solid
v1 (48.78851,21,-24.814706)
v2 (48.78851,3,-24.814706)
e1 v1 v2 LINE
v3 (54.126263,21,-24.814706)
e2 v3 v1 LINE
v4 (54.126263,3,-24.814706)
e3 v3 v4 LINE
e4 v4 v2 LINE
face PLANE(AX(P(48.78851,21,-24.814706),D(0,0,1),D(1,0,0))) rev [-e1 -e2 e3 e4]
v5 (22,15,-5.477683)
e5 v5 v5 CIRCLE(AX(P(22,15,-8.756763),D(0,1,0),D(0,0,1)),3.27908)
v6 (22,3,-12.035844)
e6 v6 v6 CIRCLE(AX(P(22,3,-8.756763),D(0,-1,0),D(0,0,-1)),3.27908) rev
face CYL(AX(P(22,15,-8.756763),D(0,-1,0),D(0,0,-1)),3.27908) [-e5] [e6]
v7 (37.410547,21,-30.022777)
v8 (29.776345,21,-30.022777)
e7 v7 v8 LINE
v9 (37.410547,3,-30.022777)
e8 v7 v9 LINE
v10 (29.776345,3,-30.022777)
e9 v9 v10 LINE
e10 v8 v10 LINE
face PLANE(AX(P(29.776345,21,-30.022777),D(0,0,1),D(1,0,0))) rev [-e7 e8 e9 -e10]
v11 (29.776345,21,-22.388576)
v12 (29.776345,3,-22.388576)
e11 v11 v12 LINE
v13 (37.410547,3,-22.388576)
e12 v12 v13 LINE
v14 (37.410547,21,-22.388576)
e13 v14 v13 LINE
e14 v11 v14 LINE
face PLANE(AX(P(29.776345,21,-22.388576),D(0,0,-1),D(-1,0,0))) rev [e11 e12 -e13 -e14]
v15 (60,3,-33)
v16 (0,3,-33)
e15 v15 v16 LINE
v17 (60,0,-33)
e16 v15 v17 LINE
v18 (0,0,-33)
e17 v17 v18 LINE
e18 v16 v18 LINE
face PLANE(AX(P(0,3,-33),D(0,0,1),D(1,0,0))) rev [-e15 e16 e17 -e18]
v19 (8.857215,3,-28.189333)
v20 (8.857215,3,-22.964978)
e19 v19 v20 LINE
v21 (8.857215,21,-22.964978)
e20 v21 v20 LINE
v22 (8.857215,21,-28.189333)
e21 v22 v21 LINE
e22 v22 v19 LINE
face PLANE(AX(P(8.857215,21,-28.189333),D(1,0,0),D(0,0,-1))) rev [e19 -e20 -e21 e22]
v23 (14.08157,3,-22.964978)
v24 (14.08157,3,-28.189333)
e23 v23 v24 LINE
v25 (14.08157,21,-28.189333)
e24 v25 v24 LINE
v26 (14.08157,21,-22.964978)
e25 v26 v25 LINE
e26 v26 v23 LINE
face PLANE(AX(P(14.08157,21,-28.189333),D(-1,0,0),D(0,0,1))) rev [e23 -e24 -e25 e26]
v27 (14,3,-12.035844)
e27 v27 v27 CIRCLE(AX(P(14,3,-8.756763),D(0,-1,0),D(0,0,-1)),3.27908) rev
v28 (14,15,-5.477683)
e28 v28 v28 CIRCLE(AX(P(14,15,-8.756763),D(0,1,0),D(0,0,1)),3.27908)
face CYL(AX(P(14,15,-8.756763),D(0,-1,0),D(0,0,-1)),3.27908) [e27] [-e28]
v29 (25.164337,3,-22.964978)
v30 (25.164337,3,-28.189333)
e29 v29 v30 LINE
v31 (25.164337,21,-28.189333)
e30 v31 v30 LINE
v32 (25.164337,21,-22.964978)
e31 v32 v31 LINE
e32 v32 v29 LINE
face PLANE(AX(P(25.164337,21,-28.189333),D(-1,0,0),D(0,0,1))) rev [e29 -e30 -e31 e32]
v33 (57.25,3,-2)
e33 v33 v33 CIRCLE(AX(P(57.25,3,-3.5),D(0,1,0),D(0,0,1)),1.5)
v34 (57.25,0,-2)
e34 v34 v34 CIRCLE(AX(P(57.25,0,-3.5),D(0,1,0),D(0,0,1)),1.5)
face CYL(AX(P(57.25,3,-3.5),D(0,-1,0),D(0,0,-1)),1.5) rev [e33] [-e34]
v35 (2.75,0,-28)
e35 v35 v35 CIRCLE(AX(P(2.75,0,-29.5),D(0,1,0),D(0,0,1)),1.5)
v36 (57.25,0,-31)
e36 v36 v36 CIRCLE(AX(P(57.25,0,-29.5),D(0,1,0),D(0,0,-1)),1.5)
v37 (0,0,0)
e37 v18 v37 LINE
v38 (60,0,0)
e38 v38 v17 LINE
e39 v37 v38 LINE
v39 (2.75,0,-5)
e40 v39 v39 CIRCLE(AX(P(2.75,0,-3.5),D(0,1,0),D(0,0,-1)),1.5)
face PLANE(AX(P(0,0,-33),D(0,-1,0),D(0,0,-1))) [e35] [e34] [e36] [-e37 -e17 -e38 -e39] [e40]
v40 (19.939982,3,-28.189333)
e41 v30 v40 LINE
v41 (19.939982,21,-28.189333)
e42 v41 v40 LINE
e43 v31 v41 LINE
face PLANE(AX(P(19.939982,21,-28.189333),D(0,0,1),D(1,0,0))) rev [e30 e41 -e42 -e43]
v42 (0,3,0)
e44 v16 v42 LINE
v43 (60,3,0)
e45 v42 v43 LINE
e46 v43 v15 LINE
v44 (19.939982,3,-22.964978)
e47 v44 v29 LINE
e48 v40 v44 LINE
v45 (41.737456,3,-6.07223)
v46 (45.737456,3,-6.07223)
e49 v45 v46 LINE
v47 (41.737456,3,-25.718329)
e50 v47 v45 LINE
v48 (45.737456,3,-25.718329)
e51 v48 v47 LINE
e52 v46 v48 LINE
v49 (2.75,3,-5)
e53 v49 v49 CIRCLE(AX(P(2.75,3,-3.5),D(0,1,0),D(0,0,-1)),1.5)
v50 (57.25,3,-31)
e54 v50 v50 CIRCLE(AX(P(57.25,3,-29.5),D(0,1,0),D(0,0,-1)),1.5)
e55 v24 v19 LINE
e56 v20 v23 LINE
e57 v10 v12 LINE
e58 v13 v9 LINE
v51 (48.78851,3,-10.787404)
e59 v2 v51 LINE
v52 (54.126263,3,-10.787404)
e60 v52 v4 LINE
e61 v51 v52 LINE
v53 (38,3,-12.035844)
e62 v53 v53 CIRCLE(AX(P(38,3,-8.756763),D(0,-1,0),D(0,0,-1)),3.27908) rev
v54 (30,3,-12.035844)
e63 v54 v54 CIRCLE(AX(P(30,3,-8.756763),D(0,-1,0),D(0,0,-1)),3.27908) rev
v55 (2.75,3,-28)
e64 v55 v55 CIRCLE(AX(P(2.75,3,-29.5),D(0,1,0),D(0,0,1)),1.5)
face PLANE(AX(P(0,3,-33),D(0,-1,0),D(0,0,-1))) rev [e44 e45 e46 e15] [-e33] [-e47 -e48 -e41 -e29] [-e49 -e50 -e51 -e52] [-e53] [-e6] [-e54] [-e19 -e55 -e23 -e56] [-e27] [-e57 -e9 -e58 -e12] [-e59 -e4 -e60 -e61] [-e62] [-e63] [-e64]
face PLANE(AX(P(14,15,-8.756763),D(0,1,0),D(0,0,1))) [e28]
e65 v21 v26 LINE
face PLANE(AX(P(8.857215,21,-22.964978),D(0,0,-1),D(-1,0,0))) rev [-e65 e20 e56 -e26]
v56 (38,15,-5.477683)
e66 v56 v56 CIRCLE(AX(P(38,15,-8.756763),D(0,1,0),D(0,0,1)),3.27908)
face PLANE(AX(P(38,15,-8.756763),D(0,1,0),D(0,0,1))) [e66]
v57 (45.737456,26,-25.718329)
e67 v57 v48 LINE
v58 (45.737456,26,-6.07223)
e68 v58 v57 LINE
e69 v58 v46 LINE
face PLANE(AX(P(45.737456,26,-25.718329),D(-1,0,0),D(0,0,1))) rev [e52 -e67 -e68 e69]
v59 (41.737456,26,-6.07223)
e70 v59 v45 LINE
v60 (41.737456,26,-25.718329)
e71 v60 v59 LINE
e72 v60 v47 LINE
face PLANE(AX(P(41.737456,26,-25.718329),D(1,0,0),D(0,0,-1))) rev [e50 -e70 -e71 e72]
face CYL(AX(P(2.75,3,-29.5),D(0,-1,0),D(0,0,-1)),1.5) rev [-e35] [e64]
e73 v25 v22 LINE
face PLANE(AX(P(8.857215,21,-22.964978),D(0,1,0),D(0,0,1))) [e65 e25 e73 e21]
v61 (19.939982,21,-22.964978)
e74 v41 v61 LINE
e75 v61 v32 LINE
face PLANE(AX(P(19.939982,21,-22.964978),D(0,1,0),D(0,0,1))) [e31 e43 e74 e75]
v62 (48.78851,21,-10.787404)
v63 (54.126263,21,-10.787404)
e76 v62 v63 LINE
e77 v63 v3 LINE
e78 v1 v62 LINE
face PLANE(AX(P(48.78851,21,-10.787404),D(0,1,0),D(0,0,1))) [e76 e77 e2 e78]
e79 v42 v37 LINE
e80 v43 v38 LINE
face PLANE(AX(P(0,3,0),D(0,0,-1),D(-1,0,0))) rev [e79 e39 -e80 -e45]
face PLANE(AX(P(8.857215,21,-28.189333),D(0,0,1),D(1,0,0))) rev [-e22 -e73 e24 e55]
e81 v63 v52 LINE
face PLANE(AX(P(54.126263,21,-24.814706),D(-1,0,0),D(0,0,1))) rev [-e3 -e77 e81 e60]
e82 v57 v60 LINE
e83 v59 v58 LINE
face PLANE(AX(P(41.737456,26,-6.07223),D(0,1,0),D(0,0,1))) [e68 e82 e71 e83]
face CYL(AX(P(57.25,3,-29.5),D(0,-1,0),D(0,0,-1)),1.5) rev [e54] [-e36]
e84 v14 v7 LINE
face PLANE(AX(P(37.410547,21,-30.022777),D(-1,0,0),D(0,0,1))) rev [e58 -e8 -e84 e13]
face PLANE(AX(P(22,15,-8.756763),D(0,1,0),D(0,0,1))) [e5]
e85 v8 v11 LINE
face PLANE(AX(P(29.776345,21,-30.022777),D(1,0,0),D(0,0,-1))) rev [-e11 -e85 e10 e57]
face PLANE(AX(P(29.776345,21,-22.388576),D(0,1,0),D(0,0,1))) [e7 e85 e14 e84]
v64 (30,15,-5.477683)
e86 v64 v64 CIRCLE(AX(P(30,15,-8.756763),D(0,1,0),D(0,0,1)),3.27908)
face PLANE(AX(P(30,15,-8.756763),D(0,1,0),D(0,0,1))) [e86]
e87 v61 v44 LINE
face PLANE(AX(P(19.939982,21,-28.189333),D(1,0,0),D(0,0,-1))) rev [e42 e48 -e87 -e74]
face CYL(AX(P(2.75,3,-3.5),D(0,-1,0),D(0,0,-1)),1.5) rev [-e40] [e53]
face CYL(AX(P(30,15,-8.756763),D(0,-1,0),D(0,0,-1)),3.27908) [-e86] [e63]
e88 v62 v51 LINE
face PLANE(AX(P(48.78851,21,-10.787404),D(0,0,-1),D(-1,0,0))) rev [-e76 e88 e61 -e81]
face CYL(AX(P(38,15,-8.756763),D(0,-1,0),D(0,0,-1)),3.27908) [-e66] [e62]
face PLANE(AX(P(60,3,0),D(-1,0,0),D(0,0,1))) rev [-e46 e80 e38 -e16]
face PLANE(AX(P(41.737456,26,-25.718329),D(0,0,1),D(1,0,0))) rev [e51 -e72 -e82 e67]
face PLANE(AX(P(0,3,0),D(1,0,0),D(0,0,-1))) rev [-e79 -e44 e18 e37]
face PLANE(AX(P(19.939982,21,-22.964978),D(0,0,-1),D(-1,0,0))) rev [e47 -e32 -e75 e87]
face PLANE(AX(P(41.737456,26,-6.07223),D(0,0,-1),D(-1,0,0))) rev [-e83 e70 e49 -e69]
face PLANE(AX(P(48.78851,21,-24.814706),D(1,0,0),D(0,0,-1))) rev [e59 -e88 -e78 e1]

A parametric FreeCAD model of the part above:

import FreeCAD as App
import Part
import Sketcher
from FreeCAD import Vector

doc = App.newDocument("Part")
body = doc.addObject("PartDesign::Body", "Body")

sketch1 = body.newObject("Sketcher::SketchObject", "Sketch")
sketch1.AttachmentSupport = (doc.getObject("XZ_Plane"), [""])
sketch1.MapMode = "FlatFace"
sketch1.addGeometry([
    Part.LineSegment(Vector(0, -33, 0), Vector(0, 0, 0)),
    Part.LineSegment(Vector(0, 0, 0), Vector(60, 0, 0)),
    Part.LineSegment(Vector(60, 0, 0), Vector(60, -33, 0)),
    Part.LineSegment(Vector(60, -33, 0), Vector(0, -33, 0)),
    Part.Circle(Vector(2.8, -3.5, 0), Vector(0, 0, 1), 1.5),
    Part.Circle(Vector(57.2, -3.5, 0), Vector(0, 0, 1), 1.5),
    Part.Circle(Vector(2.8, -29.5, 0), Vector(0, 0, 1), 1.5),
    Part.Circle(Vector(57.2, -29.5, 0), Vector(0, 0, 1), 1.5),
], False)
sketch1.addConstraint([
    Sketcher.Constraint("Coincident", 0, 2, 1, 1),
    Sketcher.Constraint("Coincident", 1, 2, 2, 1),
    Sketcher.Constraint("Coincident", 2, 2, 3, 1),
    Sketcher.Constraint("Coincident", 3, 2, 0, 1),
    Sketcher.Constraint("Vertical", 0),
    Sketcher.Constraint("Horizontal", 1),
    Sketcher.Constraint("Vertical", 2),
    Sketcher.Constraint("Horizontal", 3),
    Sketcher.Constraint("Coincident", 0, 2, -1, 1),
    Sketcher.Constraint("Equal", 4, 5),
    Sketcher.Constraint("Equal", 5, 6),
    Sketcher.Constraint("Equal", 6, 7),
    Sketcher.Constraint("Horizontal", 4, 3, 5, 3),
    Sketcher.Constraint("Horizontal", 6, 3, 7, 3),
    Sketcher.Constraint("Vertical", 4, 3, 6, 3),
    Sketcher.Constraint("Vertical", 5, 3, 7, 3),
    Sketcher.Constraint("Diameter", 4, 3.0),
    Sketcher.Constraint("DistanceX", 1, 1, 1, 2, 60.0),
    Sketcher.Constraint("DistanceY", 0, 1, 0, 2, 33.0),
    Sketcher.Constraint("DistanceY", 6, 3, 4, 3, 26.0),
    Sketcher.Constraint("DistanceY", 4, 3, -1, 1, 3.5),
    Sketcher.Constraint("DistanceX", 4, 3, 5, 3, 54.5),
    Sketcher.Constraint("DistanceX", -1, 1, 4, 3, 2.75),
])
pad1 = body.newObject("PartDesign::Pad", "Pad")
pad1.Profile = sketch1
pad1.Length = 3
pad1.Reversed = True

sketch2 = body.newObject("Sketcher::SketchObject", "Sketch001")
sketch2.AttachmentSupport = (doc.getObject("XZ_Plane"), [""])
sketch2.MapMode = "FlatFace"
sketch2.AttachmentOffset = App.Placement(Vector(0, 0, -3), App.Rotation())
sketch2.addGeometry([
    Part.LineSegment(Vector(30, -30, 0), Vector(30, -22, 0)),
    Part.LineSegment(Vector(30, -22, 0), Vector(37, -22, 0)),
    Part.LineSegment(Vector(37, -22, 0), Vector(37, -30, 0)),
    Part.LineSegment(Vector(37, -30, 0), Vector(30, -30, 0)),
    Part.LineSegment(Vector(49, -25, 0), Vector(49, -11, 0)),
    Part.LineSegment(Vector(49, -11, 0), Vector(54, -11, 0)),
    Part.LineSegment(Vector(54, -11, 0), Vector(54, -25, 0)),
    Part.LineSegment(Vector(54, -25, 0), Vector(49, -25, 0)),
    Part.LineSegment(Vector(9, -28, 0), Vector(9, -23, 0)),
    Part.LineSegment(Vector(9, -23, 0), Vector(14, -23, 0)),
    Part.LineSegment(Vector(14, -23, 0), Vector(14, -28, 0)),
    Part.LineSegment(Vector(14, -28, 0), Vector(9, -28, 0)),
    Part.LineSegment(Vector(20, -28, 0), Vector(20, -23, 0)),
    Part.LineSegment(Vector(20, -23, 0), Vector(25, -23, 0)),
    Part.LineSegment(Vector(25, -23, 0), Vector(25, -28, 0)),
    Part.LineSegment(Vector(25, -28, 0), Vector(20, -28, 0)),
], False)
sketch2.addConstraint([
    Sketcher.Constraint("Coincident", 0, 2, 1, 1),
    Sketcher.Constraint("Coincident", 1, 2, 2, 1),
    Sketcher.Constraint("Coincident", 2, 2, 3, 1),
    Sketcher.Constraint("Coincident", 3, 2, 0, 1),
    Sketcher.Constraint("Coincident", 4, 2, 5, 1),
    Sketcher.Constraint("Coincident", 5, 2, 6, 1),
    Sketcher.Constraint("Coincident", 6, 2, 7, 1),
    Sketcher.Constraint("Coincident", 7, 2, 4, 1),
    Sketcher.Constraint("Coincident", 8, 2, 9, 1),
    Sketcher.Constraint("Coincident", 9, 2, 10, 1),
    Sketcher.Constraint("Coincident", 10, 2, 11, 1),
    Sketcher.Constraint("Coincident", 11, 2, 8, 1),
    Sketcher.Constraint("Coincident", 12, 2, 13, 1),
    Sketcher.Constraint("Coincident", 13, 2, 14, 1),
    Sketcher.Constraint("Coincident", 14, 2, 15, 1),
    Sketcher.Constraint("Coincident", 15, 2, 12, 1),
    Sketcher.Constraint("Vertical", 0),
    Sketcher.Constraint("Horizontal", 1),
    Sketcher.Constraint("Vertical", 2),
    Sketcher.Constraint("Horizontal", 3),
    Sketcher.Constraint("Vertical", 4),
    Sketcher.Constraint("Horizontal", 5),
    Sketcher.Constraint("Vertical", 6),
    Sketcher.Constraint("Horizontal", 7),
    Sketcher.Constraint("Vertical", 8),
    Sketcher.Constraint("Horizontal", 9),
    Sketcher.Constraint("Vertical", 10),
    Sketcher.Constraint("Horizontal", 11),
    Sketcher.Constraint("Vertical", 12),
    Sketcher.Constraint("Horizontal", 13),
    Sketcher.Constraint("Vertical", 14),
    Sketcher.Constraint("Horizontal", 15),
    Sketcher.Constraint("Horizontal", 9, 2, 12, 2),
    Sketcher.Constraint("Horizontal", 11, 2, 14, 2),
    Sketcher.Constraint("Equal", 11, 13),
    Sketcher.Constraint("Equal", 3, 0),
    Sketcher.Constraint("Equal", 15, 8),
    Sketcher.Constraint("DistanceX", 1, 1, 1, 2, 7.634202),
    Sketcher.Constraint("DistanceY", 4, 1, 4, 2, 14.027302),
    Sketcher.Constraint("DistanceY", 3, 2, 8, 2, 7.057799),
    Sketcher.Constraint("DistanceX", 5, 1, 5, 2, 5.337753),
    Sketcher.Constraint("DistanceX", 9, 1, 9, 2, 5.224355),
    Sketcher.Constraint("DistanceX", -1, 1, 4, 2, 48.78851),
    Sketcher.Constraint("DistanceX", -1, 1, 9, 2, 14.08157),
    Sketcher.Constraint("DistanceY", 1, 2, 4, 2, 11.601171),
    Sketcher.Constraint("DistanceX", 0, 2, 5, 2, 24.349918),
    Sketcher.Constraint("DistanceX", 13, 2, 0, 2, 4.612008),
    Sketcher.Constraint("DistanceY", 0, 2, -1, 1, 22.388576),
])
pad2 = body.newObject("PartDesign::Pad", "Pad001")
pad2.Profile = sketch2
pad2.Length = 18
pad2.Reversed = True

sketch3 = body.newObject("Sketcher::SketchObject", "Sketch002")
sketch3.AttachmentSupport = (doc.getObject("XZ_Plane"), [""])
sketch3.MapMode = "FlatFace"
sketch3.AttachmentOffset = App.Placement(Vector(0, 0, -3), App.Rotation())
sketch3.addGeometry([
    Part.Circle(Vector(14, -8.8, 0), Vector(0, 0, 1), 3.3),
    Part.Circle(Vector(22, -8.8, 0), Vector(0, 0, 1), 3.3),
    Part.Circle(Vector(30, -8.8, 0), Vector(0, 0, 1), 3.3),
    Part.Circle(Vector(38, -8.8, 0), Vector(0, 0, 1), 3.3),
], False)
sketch3.addConstraint([
    Sketcher.Constraint("Equal", 0, 1),
    Sketcher.Constraint("Equal", 1, 2),
    Sketcher.Constraint("Equal", 2, 3),
    Sketcher.Constraint("Horizontal", 0, 3, 1, 3),
    Sketcher.Constraint("Horizontal", 1, 3, 2, 3),
    Sketcher.Constraint("Horizontal", 2, 3, 3, 3),
    Sketcher.Constraint("DistanceX", -1, 1, 0, 3, 14.0),
    Sketcher.Constraint("DistanceX", -1, 1, 1, 3, 22.0),
    Sketcher.Constraint("DistanceX", -1, 1, 2, 3, 30.0),
    Sketcher.Constraint("DistanceX", -1, 1, 3, 3, 38.0),
    Sketcher.Constraint("Diameter", 0, 6.558161),
    Sketcher.Constraint("DistanceY", 0, 3, -1, 1, 8.756763),
])
pad3 = body.newObject("PartDesign::Pad", "Pad002")
pad3.Profile = sketch3
pad3.Length = 12
pad3.Reversed = True

sketch4 = body.newObject("Sketcher::SketchObject", "Sketch003")
sketch4.AttachmentSupport = (doc.getObject("XZ_Plane"), [""])
sketch4.MapMode = "FlatFace"
sketch4.AttachmentOffset = App.Placement(Vector(0, 0, -3), App.Rotation())
sketch4.addGeometry([
    Part.LineSegment(Vector(41.7, -25.7, 0), Vector(41.7, -6.1, 0)),
    Part.LineSegment(Vector(41.7, -6.1, 0), Vector(45.7, -6.1, 0)),
    Part.LineSegment(Vector(45.7, -6.1, 0), Vector(45.7, -25.7, 0)),
    Part.LineSegment(Vector(45.7, -25.7, 0), Vector(41.7, -25.7, 0)),
], False)
sketch4.addConstraint([
    Sketcher.Constraint("Coincident", 0, 2, 1, 1),
    Sketcher.Constraint("Coincident", 1, 2, 2, 1),
    Sketcher.Constraint("Coincident", 2, 2, 3, 1),
    Sketcher.Constraint("Coincident", 3, 2, 0, 1),
    Sketcher.Constraint("Vertical", 0),
    Sketcher.Constraint("Horizontal", 1),
    Sketcher.Constraint("Vertical", 2),
    Sketcher.Constraint("Horizontal", 3),
    Sketcher.Constraint("DistanceX", 1, 1, 1, 2, 4.0),
    Sketcher.Constraint("DistanceY", 0, 1, 0, 2, 19.646099),
    Sketcher.Constraint("DistanceY", 0, 2, -1, 1, 6.07223),
    Sketcher.Constraint("DistanceX", -1, 1, 0, 2, 41.737456),
])
pad4 = body.newObject("PartDesign::Pad", "Pad003")
pad4.Profile = sketch4
pad4.Length = 23
pad4.Reversed = True

doc.recompute()
